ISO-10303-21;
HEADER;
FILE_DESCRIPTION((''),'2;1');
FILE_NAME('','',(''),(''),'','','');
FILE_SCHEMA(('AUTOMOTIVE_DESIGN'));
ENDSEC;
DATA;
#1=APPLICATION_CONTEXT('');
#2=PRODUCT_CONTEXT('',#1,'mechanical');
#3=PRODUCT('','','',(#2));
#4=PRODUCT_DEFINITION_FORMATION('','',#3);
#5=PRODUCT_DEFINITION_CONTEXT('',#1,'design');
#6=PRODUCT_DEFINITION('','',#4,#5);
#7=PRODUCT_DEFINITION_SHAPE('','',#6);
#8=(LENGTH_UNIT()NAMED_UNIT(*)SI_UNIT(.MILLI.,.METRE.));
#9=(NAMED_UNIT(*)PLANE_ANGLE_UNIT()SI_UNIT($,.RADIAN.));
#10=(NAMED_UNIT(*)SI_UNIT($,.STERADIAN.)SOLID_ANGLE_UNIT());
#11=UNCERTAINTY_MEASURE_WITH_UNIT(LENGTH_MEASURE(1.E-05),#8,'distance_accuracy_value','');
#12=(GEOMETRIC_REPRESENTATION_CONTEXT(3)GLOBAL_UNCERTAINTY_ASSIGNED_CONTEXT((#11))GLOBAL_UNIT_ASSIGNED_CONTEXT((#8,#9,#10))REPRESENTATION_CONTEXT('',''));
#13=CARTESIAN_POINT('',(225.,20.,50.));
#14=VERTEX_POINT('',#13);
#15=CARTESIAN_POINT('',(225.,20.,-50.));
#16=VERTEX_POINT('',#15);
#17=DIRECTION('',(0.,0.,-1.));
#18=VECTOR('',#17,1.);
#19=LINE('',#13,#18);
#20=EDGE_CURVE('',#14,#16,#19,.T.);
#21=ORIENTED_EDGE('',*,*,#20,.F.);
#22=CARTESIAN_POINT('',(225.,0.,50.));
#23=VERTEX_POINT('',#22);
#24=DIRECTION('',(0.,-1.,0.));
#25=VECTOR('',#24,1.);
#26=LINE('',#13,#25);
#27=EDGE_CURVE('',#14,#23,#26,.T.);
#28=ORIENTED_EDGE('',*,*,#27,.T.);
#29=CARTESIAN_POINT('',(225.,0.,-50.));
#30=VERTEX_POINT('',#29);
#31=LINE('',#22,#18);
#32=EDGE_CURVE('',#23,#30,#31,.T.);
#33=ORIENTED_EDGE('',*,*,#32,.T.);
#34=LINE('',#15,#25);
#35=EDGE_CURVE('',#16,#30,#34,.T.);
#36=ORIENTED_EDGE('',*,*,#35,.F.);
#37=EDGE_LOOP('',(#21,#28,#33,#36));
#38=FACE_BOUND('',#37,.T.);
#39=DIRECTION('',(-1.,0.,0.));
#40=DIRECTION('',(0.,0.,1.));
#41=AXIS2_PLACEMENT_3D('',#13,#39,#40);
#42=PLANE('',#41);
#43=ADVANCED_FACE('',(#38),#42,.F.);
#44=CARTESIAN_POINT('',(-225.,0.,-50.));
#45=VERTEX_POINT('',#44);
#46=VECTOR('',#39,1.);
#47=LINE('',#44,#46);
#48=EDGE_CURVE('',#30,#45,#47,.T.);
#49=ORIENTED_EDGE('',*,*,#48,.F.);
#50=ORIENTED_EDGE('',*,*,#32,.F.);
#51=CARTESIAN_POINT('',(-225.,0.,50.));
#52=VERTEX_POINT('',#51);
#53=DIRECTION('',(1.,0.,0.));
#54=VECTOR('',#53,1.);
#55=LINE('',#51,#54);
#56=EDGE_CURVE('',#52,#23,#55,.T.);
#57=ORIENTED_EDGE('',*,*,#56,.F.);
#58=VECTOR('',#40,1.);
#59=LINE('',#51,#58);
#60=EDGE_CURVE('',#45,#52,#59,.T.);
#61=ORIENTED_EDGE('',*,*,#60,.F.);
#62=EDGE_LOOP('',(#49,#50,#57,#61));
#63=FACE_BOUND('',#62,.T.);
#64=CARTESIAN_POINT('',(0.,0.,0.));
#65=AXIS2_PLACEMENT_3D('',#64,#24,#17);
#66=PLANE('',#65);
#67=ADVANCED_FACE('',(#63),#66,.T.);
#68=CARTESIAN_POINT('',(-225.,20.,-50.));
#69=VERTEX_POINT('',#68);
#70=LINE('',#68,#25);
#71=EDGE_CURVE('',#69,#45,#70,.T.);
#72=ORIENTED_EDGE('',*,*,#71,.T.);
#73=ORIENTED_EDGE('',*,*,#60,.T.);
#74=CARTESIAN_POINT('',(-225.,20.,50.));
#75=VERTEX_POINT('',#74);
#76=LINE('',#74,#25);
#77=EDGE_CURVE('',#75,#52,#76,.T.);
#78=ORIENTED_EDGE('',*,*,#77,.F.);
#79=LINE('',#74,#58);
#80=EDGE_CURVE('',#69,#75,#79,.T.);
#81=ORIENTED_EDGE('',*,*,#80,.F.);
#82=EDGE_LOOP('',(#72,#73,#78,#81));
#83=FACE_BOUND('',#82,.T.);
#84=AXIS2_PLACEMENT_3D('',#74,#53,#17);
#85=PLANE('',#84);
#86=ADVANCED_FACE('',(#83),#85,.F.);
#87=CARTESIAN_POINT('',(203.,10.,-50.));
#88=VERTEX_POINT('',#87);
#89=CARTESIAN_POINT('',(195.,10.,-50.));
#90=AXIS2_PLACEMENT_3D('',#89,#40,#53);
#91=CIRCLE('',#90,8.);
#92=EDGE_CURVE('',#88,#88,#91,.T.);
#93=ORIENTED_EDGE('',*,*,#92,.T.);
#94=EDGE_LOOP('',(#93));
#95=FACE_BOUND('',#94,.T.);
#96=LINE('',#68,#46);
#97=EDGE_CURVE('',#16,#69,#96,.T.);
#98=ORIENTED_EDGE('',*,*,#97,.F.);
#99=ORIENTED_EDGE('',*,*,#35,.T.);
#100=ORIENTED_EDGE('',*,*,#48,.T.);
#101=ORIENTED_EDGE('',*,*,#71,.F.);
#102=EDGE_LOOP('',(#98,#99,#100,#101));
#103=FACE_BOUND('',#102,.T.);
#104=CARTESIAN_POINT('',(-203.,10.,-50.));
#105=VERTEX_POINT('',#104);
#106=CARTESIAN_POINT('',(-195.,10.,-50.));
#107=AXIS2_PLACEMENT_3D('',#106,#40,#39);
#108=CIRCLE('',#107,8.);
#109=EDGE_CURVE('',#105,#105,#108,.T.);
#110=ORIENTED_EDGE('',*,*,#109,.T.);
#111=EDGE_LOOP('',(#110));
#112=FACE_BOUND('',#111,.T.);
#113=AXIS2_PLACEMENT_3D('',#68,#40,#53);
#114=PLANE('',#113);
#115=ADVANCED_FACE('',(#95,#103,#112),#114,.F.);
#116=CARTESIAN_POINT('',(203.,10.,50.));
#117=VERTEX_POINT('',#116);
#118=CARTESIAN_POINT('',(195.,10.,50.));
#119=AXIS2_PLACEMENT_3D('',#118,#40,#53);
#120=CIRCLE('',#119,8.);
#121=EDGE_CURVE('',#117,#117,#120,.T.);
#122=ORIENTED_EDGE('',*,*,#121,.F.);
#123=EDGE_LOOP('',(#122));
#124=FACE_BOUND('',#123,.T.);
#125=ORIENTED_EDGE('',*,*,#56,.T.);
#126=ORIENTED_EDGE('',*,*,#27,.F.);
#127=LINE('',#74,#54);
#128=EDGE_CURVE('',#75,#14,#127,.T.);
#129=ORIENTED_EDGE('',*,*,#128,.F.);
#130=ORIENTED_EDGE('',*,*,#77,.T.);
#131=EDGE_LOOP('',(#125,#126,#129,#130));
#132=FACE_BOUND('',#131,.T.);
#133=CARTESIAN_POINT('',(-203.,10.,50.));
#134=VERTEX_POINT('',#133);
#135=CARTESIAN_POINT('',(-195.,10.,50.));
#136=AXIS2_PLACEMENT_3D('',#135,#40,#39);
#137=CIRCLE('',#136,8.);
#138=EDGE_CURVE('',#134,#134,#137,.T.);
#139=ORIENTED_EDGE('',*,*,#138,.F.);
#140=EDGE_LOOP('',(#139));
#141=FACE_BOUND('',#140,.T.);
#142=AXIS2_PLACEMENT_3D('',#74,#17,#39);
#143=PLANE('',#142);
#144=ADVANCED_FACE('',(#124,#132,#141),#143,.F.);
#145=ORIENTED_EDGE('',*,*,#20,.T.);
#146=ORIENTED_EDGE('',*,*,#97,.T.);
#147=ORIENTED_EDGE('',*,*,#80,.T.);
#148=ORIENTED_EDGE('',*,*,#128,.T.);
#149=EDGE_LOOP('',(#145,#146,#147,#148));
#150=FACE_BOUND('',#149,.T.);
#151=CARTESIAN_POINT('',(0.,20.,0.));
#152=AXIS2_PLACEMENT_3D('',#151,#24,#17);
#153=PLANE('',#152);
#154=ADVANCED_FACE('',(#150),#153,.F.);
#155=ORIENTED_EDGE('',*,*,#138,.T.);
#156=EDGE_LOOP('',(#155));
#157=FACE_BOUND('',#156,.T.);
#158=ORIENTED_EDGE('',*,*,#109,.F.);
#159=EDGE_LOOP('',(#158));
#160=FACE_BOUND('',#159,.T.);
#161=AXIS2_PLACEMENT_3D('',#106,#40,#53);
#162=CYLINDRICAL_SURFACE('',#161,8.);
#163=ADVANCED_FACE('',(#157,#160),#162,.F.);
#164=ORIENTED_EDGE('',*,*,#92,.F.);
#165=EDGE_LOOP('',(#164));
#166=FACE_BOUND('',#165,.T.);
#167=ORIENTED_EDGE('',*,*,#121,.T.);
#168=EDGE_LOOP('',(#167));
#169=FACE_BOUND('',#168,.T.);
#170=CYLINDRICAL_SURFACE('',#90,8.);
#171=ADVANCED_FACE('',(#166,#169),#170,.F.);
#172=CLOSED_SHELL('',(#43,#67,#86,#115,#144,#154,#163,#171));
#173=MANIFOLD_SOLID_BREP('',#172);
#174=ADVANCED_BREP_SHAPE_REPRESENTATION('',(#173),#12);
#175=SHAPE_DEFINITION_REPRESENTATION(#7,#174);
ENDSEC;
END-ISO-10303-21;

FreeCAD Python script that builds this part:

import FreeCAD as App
import Part
import Sketcher
from FreeCAD import Vector
Q = App.Units.Quantity

doc = App.newDocument("Part")
body = doc.addObject("PartDesign::Body", "Body")

sketch1 = doc.addObject("Sketcher::SketchObject", "Sketch")
body.addObject(sketch1)
sketch1.AttachmentSupport = (doc.XZ_Plane, [""])
sketch1.MapMode = "FlatFace"
sketch1.addGeometry(Part.LineSegment(Vector(-225, -50, 0), Vector(-225, 50, 0)), False)
sketch1.addGeometry(Part.LineSegment(Vector(-225, 50, 0), Vector(225, 50, 0)), False)
sketch1.addGeometry(Part.LineSegment(Vector(225, 50, 0), Vector(225, -50, 0)), False)
sketch1.addGeometry(Part.LineSegment(Vector(225, -50, 0), Vector(-225, -50, 0)), False)
sketch1.addConstraint(Sketcher.Constraint("Coincident", 0, 2, 1, 1))
sketch1.addConstraint(Sketcher.Constraint("Coincident", 1, 2, 2, 1))
sketch1.addConstraint(Sketcher.Constraint("Coincident", 2, 2, 3, 1))
sketch1.addConstraint(Sketcher.Constraint("Coincident", 3, 2, 0, 1))
sketch1.addConstraint(Sketcher.Constraint("Vertical", 0))
sketch1.addConstraint(Sketcher.Constraint("Horizontal", 1))
sketch1.addConstraint(Sketcher.Constraint("Vertical", 2))
sketch1.addConstraint(Sketcher.Constraint("Horizontal", 3))
sketch1.addConstraint(Sketcher.Constraint("Symmetric", 0, 2, 2, 2, -1, 1))
sketch1.addConstraint(Sketcher.Constraint("DistanceX", 1, 1, 1, 2, Q("450 mm")))
sketch1.addConstraint(Sketcher.Constraint("DistanceY", 0, 1, 0, 2, Q("100 mm")))
pad1 = doc.addObject("PartDesign::Pad", "Pad")
body.addObject(pad1)
pad1.Profile = sketch1
pad1.Length = 20
pad1.Reversed = True

sketch2 = doc.addObject("Sketcher::SketchObject", "Sketch001")
body.addObject(sketch2)
sketch2.AttachmentSupport = (doc.XY_Plane, [""])
sketch2.MapMode = "FlatFace"
sketch2.AttachmentOffset = App.Placement(Vector(0, 0, 50), App.Rotation())
sketch2.addGeometry(Part.Circle(Vector(195, 10, 0), Vector(0, 0, 1), 8), False)
sketch2.addGeometry(Part.Circle(Vector(-195, 10, 0), Vector(0, 0, 1), 8), False)
sketch2.addConstraint(Sketcher.Constraint("Equal", 0, 1))
sketch2.addConstraint(Sketcher.Constraint("Symmetric", 0, 3, 1, 3, -2))
sketch2.addConstraint(Sketcher.Constraint("Diameter", 0, Q("16 mm")))
sketch2.addConstraint(Sketcher.Constraint("DistanceX", -1, 1, 0, 3, Q("195 mm")))
sketch2.addConstraint(Sketcher.Constraint("DistanceY", -1, 1, 0, 3, Q("10 mm")))
pocket1 = doc.addObject("PartDesign::Pocket", "Pocket")
body.addObject(pocket1)
pocket1.Profile = sketch2
pocket1.Type = "ThroughAll"

doc.recompute()
